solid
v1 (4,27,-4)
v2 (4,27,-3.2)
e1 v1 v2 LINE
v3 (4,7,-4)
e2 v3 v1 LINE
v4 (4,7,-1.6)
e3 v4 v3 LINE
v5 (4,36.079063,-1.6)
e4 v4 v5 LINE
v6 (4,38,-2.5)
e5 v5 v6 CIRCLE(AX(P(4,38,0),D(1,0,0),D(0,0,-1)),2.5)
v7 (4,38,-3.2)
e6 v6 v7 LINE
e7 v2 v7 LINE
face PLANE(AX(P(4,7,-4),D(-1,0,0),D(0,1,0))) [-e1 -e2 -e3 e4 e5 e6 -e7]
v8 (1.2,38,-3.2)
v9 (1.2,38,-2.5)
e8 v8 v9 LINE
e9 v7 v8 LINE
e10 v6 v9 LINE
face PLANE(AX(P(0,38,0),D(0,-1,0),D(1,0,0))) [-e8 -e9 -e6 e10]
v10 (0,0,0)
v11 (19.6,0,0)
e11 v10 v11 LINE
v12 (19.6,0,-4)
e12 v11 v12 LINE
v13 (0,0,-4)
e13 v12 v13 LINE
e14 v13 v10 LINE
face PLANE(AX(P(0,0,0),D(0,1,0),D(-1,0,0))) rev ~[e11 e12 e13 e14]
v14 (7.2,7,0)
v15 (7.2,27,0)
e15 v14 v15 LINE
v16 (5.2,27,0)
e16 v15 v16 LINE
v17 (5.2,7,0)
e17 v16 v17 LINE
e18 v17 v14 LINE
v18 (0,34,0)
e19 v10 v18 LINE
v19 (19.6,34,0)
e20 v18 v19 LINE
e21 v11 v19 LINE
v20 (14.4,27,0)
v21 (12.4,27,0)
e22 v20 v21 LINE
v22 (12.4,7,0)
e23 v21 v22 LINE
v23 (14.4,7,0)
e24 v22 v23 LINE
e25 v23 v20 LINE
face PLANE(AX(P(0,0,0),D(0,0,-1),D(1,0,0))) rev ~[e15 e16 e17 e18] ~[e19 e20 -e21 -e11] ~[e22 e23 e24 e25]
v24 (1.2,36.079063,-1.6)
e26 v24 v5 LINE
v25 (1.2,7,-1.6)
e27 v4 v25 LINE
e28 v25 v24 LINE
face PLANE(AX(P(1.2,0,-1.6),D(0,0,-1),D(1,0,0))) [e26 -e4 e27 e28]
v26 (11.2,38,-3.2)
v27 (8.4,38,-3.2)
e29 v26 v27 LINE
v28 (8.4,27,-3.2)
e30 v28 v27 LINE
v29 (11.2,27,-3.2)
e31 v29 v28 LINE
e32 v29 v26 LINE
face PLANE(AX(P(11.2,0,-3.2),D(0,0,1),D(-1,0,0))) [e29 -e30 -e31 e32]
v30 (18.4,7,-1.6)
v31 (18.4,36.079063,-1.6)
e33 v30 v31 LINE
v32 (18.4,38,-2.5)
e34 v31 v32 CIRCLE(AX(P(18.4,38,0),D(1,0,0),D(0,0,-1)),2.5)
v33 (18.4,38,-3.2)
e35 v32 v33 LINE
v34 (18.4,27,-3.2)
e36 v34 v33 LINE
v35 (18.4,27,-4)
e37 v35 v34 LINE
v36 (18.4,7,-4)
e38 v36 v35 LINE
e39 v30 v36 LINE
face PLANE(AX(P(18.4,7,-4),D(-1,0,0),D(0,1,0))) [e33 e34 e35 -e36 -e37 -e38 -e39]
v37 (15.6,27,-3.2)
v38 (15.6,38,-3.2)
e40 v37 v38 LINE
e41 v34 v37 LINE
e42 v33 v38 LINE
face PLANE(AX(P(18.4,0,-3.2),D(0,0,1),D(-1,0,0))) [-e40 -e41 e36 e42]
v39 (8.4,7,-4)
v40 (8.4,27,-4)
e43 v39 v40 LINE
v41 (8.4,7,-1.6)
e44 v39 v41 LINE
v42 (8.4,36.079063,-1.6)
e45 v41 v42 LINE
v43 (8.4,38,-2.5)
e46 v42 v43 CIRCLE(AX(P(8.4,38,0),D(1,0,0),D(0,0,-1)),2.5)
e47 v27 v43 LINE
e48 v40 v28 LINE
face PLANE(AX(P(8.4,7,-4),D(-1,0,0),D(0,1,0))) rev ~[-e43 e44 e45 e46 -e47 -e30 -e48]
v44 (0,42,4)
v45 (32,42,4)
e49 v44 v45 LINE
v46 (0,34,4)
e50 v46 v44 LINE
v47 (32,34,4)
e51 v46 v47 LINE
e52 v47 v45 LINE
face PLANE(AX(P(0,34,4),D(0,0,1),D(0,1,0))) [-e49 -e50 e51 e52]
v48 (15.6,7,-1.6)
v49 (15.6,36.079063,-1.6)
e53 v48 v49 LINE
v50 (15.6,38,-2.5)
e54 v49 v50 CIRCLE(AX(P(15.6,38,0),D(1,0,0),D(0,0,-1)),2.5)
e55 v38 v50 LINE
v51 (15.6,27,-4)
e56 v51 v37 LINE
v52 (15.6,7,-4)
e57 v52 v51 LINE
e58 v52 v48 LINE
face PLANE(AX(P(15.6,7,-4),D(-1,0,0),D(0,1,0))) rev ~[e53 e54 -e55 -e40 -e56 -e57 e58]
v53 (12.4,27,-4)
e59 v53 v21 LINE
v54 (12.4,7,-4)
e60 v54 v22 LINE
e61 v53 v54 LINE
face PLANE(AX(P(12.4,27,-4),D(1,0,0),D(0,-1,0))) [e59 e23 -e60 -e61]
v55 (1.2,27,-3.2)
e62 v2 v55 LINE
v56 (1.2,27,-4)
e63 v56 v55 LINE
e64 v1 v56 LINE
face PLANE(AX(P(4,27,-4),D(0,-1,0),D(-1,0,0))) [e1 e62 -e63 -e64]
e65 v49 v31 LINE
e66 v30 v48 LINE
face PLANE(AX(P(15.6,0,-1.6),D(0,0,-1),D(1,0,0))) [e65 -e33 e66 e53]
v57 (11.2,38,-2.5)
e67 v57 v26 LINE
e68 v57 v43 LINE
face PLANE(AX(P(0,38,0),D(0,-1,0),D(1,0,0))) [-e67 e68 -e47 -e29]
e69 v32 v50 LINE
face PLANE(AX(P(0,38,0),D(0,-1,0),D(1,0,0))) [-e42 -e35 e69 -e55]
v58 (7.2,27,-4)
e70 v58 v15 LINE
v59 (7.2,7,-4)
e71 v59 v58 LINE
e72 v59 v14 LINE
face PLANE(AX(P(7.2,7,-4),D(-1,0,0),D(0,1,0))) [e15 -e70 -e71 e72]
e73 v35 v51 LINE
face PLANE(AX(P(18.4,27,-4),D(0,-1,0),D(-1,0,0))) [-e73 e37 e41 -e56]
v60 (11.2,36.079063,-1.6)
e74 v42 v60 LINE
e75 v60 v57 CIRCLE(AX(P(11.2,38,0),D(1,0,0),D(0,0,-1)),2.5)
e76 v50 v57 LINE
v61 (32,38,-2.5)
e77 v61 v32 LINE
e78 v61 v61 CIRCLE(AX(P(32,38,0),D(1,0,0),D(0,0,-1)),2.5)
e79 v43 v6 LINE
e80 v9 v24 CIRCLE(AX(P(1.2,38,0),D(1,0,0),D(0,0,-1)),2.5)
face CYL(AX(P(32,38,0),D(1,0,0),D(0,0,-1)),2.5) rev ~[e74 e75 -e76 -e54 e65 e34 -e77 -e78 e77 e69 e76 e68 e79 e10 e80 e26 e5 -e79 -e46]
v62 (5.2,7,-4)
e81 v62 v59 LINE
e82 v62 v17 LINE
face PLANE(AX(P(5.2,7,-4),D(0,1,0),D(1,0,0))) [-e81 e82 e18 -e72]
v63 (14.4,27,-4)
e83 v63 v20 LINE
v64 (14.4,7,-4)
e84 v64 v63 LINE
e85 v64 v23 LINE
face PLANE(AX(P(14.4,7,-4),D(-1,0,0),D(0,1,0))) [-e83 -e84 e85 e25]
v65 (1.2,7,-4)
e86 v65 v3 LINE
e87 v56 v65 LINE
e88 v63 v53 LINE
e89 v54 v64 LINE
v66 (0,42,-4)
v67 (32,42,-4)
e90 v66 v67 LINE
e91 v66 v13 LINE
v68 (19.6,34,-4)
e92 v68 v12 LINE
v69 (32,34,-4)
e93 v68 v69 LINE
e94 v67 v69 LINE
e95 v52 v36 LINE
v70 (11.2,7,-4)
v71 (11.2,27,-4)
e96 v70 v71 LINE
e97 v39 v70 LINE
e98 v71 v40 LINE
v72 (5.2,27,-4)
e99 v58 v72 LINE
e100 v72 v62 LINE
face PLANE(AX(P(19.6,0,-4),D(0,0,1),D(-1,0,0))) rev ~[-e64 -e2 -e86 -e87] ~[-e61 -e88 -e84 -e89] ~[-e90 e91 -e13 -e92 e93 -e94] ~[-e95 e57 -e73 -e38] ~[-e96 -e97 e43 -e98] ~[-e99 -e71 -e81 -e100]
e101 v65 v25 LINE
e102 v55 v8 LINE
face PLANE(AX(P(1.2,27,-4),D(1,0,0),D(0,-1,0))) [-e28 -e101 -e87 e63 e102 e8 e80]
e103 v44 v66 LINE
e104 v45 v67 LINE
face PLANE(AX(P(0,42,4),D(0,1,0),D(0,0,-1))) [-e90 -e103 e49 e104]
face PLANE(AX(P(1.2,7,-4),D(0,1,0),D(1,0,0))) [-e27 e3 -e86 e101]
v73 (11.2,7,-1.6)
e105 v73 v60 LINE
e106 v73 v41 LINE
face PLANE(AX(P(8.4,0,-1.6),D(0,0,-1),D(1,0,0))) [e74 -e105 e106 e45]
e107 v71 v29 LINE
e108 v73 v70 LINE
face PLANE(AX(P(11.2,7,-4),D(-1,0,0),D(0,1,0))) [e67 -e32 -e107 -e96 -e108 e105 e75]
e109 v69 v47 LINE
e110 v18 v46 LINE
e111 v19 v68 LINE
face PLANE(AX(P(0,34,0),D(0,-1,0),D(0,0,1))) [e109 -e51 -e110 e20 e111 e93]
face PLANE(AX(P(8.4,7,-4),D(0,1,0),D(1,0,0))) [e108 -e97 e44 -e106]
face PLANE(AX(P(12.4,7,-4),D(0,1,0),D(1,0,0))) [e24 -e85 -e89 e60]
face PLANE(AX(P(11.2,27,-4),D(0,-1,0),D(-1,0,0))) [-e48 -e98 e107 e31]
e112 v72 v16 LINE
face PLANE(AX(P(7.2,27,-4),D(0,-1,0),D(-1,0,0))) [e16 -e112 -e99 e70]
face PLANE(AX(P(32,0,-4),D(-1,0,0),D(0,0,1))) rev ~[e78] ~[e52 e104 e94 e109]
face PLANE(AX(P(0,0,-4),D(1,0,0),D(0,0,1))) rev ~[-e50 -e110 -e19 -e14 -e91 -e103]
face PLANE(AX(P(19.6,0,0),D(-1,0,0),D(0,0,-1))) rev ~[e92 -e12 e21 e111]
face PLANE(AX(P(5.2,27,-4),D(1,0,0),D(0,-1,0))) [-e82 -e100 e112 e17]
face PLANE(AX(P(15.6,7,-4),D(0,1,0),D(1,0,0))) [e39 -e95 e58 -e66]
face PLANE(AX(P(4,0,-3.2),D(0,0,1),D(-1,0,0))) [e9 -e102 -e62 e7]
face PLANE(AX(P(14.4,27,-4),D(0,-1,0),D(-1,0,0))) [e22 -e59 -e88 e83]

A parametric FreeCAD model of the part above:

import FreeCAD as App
import Part
import Sketcher
from FreeCAD import Vector
Q = App.Units.Quantity


def add_polygon(sketch, points):
    """Adds a closed chain of lines whose ends are joined by coincident constraints."""
    first, n = sketch.GeometryCount, len(points)
    for a, b in zip(points, points[1:] + points[:1]):
        sketch.addGeometry(Part.LineSegment(App.Vector(*a, 0), App.Vector(*b, 0)), False)
    for i in range(n):
        sketch.addConstraint(Sketcher.Constraint("Coincident", first + i, 2, first + (i + 1) % n, 1))

doc = App.newDocument("Part")
body = doc.addObject("PartDesign::Body", "Body")

# Sketch on XZ plane
sketch1 = body.newObject("Sketcher::SketchObject", "Sketch")
sketch1.AttachmentSupport = (doc.getObject("XZ_Plane"), [""])
sketch1.MapMode = "FlatFace"
add_polygon(sketch1, [(0, -4), (0, 0), (19.6, 0), (19.6, -4)])  # lines 0-3
sketch1.addConstraint(Sketcher.Constraint("Vertical", 0))
sketch1.addConstraint(Sketcher.Constraint("Horizontal", 1))
sketch1.addConstraint(Sketcher.Constraint("Vertical", 2))
sketch1.addConstraint(Sketcher.Constraint("Horizontal", 3))
sketch1.addConstraint(Sketcher.Constraint("Coincident", 0, 2, -1, 1))
sketch1.addConstraint(Sketcher.Constraint("DistanceY", 0, 1, 0, 2, Q("4 mm")))
sketch1.addConstraint(Sketcher.Constraint("DistanceX", 1, 1, 1, 2, Q("19.6 mm")))
pad1 = body.newObject("PartDesign::Pad", "Pad")
pad1.Profile = sketch1
pad1.Length = 34
pad1.Reversed = True

# Sketch on YZ plane
sketch2 = body.newObject("Sketcher::SketchObject", "Sketch001")
sketch2.AttachmentSupport = (doc.getObject("YZ_Plane"), [""])
sketch2.MapMode = "FlatFace"
add_polygon(sketch2, [(34, -4), (34, 4), (42, 4), (42, -4)])  # lines 0-3
sketch2.addConstraint(Sketcher.Constraint("Vertical", 0))
sketch2.addConstraint(Sketcher.Constraint("Horizontal", 1))
sketch2.addConstraint(Sketcher.Constraint("Vertical", 2))
sketch2.addConstraint(Sketcher.Constraint("Horizontal", 3))
sketch2.addConstraint(Sketcher.Constraint("Equal", 3, 0))
sketch2.addConstraint(Sketcher.Constraint("DistanceX", 1, 1, 1, 2, Q("8 mm")))
sketch2.addConstraint(Sketcher.Constraint("DistanceY", -1, 1, 0, 2, Q("4 mm")))
sketch2.addConstraint(Sketcher.Constraint("DistanceX", -1, 1, 0, 2, Q("34 mm")))
pad2 = body.newObject("PartDesign::Pad", "Pad001")
pad2.Profile = sketch2
pad2.Length = 32

# Sketch on YZ plane
sketch3 = body.newObject("Sketcher::SketchObject", "Sketch002")
sketch3.AttachmentSupport = (doc.getObject("YZ_Plane"), [""])
sketch3.MapMode = "FlatFace"
sketch3.AttachmentOffset = App.Placement(Vector(0, 0, 32), App.Rotation())
sketch3.addGeometry(Part.Circle(Vector(38, 0, 0), Vector(0, 0, 1), 2.5), False)
sketch3.addConstraint(Sketcher.Constraint("PointOnObject", 0, 3, -1))
sketch3.addConstraint(Sketcher.Constraint("Diameter", 0, Q("5 mm")))
sketch3.addConstraint(Sketcher.Constraint("DistanceX", -1, 1, 0, 3, Q("38 mm")))
pocket1 = body.newObject("PartDesign::Pocket", "Pocket")
pocket1.Profile = sketch3
pocket1.Length = 30.8

# Sketch on XZ plane
sketch4 = body.newObject("Sketcher::SketchObject", "Sketch003")
sketch4.AttachmentSupport = (doc.getObject("XZ_Plane"), [""])
sketch4.MapMode = "FlatFace"
add_polygon(sketch4, [(15.6, -3.2), (18.4, -3.2), (18.4, -1.6), (15.6, -1.6)])  # lines 0-3
add_polygon(sketch4, [(8.4, -3.2), (11.2, -3.2), (11.2, -1.6), (8.4, -1.6)])  # lines 4-7
add_polygon(sketch4, [(1.2, -3.2), (4, -3.2), (4, -1.6), (1.2, -1.6)])  # lines 8-11
sketch4.addConstraint(Sketcher.Constraint("Horizontal", 0))
sketch4.addConstraint(Sketcher.Constraint("Vertical", 1))
sketch4.addConstraint(Sketcher.Constraint("Horizontal", 2))
sketch4.addConstraint(Sketcher.Constraint("Vertical", 3))
sketch4.addConstraint(Sketcher.Constraint("Horizontal", 4))
sketch4.addConstraint(Sketcher.Constraint("Vertical", 5))
sketch4.addConstraint(Sketcher.Constraint("Horizontal", 6))
sketch4.addConstraint(Sketcher.Constraint("Vertical", 7))
sketch4.addConstraint(Sketcher.Constraint("Horizontal", 8))
sketch4.addConstraint(Sketcher.Constraint("Vertical", 9))
sketch4.addConstraint(Sketcher.Constraint("Horizontal", 10))
sketch4.addConstraint(Sketcher.Constraint("Vertical", 11))
sketch4.addConstraint(Sketcher.Constraint("Horizontal", 3, 2, 4, 2))
sketch4.addConstraint(Sketcher.Constraint("Horizontal", 2, 2, 5, 2))
sketch4.addConstraint(Sketcher.Constraint("Horizontal", 7, 2, 8, 2))
sketch4.addConstraint(Sketcher.Constraint("Horizontal", 6, 2, 9, 2))
sketch4.addConstraint(Sketcher.Constraint("Equal", 2, 4))
sketch4.addConstraint(Sketcher.Constraint("Equal", 6, 8))
sketch4.addConstraint(Sketcher.Constraint("DistanceX", 0, 1, 0, 2, Q("2.8 mm")))
sketch4.addConstraint(Sketcher.Constraint("DistanceY", 1, 1, 1, 2, Q("1.6 mm")))
sketch4.addConstraint(Sketcher.Constraint("DistanceY", 1, 2, -1, 1, Q("1.6 mm")))
sketch4.addConstraint(Sketcher.Constraint("DistanceX", -1, 1, 10, 2, Q("1.2 mm")))
sketch4.addConstraint(Sketcher.Constraint("DistanceX", 4, 2, 3, 2, Q("4.4 mm")))
sketch4.addConstraint(Sketcher.Constraint("DistanceX", 8, 2, 7, 2, Q("4.4 mm")))
pocket2 = body.newObject("PartDesign::Pocket", "Pocket001")
pocket2.Profile = sketch4
pocket2.Length = 38

# Sketch on XY plane
sketch5 = body.newObject("Sketcher::SketchObject", "Sketch004")
sketch5.AttachmentSupport = (doc.getObject("XY_Plane"), [""])
sketch5.MapMode = "FlatFace"
sketch5.AttachmentOffset = App.Placement(Vector(0, 0, -4), App.Rotation())
add_polygon(sketch5, [(4, 27), (4, 7), (1.2, 7), (1.2, 27)])  # lines 0-3
add_polygon(sketch5, [(18.4, 27), (18.4, 7), (15.6, 7), (15.6, 27)])  # lines 4-7
add_polygon(sketch5, [(11.2, 27), (11.2, 7), (8.4, 7), (8.4, 27)])  # lines 8-11
sketch5.addConstraint(Sketcher.Constraint("Vertical", 0))
sketch5.addConstraint(Sketcher.Constraint("Horizontal", 1))
sketch5.addConstraint(Sketcher.Constraint("Vertical", 2))
sketch5.addConstraint(Sketcher.Constraint("Horizontal", 3))
sketch5.addConstraint(Sketcher.Constraint("Vertical", 4))
sketch5.addConstraint(Sketcher.Constraint("Horizontal", 5))
sketch5.addConstraint(Sketcher.Constraint("Vertical", 6))
sketch5.addConstraint(Sketcher.Constraint("Horizontal", 7))
sketch5.addConstraint(Sketcher.Constraint("Vertical", 8))
sketch5.addConstraint(Sketcher.Constraint("Horizontal", 9))
sketch5.addConstraint(Sketcher.Constraint("Vertical", 10))
sketch5.addConstraint(Sketcher.Constraint("Horizontal", 11))
sketch5.addConstraint(Sketcher.Constraint("Horizontal", 1, 2, 4, 2))
sketch5.addConstraint(Sketcher.Constraint("Horizontal", 3, 2, 6, 2))
sketch5.addConstraint(Sketcher.Constraint("Horizontal", 5, 2, 8, 2))
sketch5.addConstraint(Sketcher.Constraint("Horizontal", 7, 2, 10, 2))
sketch5.addConstraint(Sketcher.Constraint("Equal", 3, 5))
sketch5.addConstraint(Sketcher.Constraint("Equal", 7, 9))
sketch5.addConstraint(Sketcher.Constraint("DistanceY", 0, 2, 0, 1, Q("20 mm")))
sketch5.addConstraint(Sketcher.Constraint("DistanceY", -1, 1, 0, 2, Q("7 mm")))
sketch5.addConstraint(Sketcher.Constraint("DistanceX", -1, 1, 1, 2, Q("1.2 mm")))
sketch5.addConstraint(Sketcher.Constraint("DistanceX", 1, 2, 1, 1, Q("2.8 mm")))
sketch5.addConstraint(Sketcher.Constraint("DistanceX", 1, 2, 8, 2, Q("10 mm")))
sketch5.addConstraint(Sketcher.Constraint("DistanceX", 9, 2, 4, 2, Q("10 mm")))
pocket3 = body.newObject("PartDesign::Pocket", "Pocket002")
pocket3.Profile = sketch5
pocket3.Length = 0.8
pocket3.Reversed = True

# Sketch on XY plane
sketch6 = body.newObject("Sketcher::SketchObject", "Sketch005")
sketch6.AttachmentSupport = (doc.getObject("XY_Plane"), [""])
sketch6.MapMode = "FlatFace"
sketch6.AttachmentOffset = App.Placement(Vector(0, 0, -4), App.Rotation())
add_polygon(sketch6, [(12.4, 27), (14.4, 27), (14.4, 7), (12.4, 7)])  # lines 0-3
add_polygon(sketch6, [(5.2, 27), (7.2, 27), (7.2, 7), (5.2, 7)])  # lines 4-7
sketch6.addConstraint(Sketcher.Constraint("Horizontal", 0))
sketch6.addConstraint(Sketcher.Constraint("Vertical", 1))
sketch6.addConstraint(Sketcher.Constraint("Horizontal", 2))
sketch6.addConstraint(Sketcher.Constraint("Vertical", 3))
sketch6.addConstraint(Sketcher.Constraint("Horizontal", 4))
sketch6.addConstraint(Sketcher.Constraint("Vertical", 5))
sketch6.addConstraint(Sketcher.Constraint("Horizontal", 6))
sketch6.addConstraint(Sketcher.Constraint("Vertical", 7))
sketch6.addConstraint(Sketcher.Constraint("Horizontal", 3, 2, 4, 2))
sketch6.addConstraint(Sketcher.Constraint("Horizontal", 2, 2, 5, 2))
sketch6.addConstraint(Sketcher.Constraint("Equal", 2, 4))
sketch6.addConstraint(Sketcher.Constraint("DistanceX", 0, 1, 0, 2, Q("2 mm")))
sketch6.addConstraint(Sketcher.Constraint("DistanceY", 1, 2, 1, 1, Q("20 mm")))
sketch6.addConstraint(Sketcher.Constraint("DistanceY", -1, 1, 0, 2, Q("27 mm")))
sketch6.addConstraint(Sketcher.Constraint("DistanceX", -1, 1, 0, 2, Q("14.4 mm")))
sketch6.addConstraint(Sketcher.Constraint("DistanceX", -1, 1, 4, 2, Q("7.2 mm")))
pocket4 = body.newObject("PartDesign::Pocket", "Pocket003")
pocket4.Profile = sketch6
pocket4.Length = 4
pocket4.Reversed = True

# Sketch on XZ plane
sketch7 = body.newObject("Sketcher::SketchObject", "Sketch006")
sketch7.AttachmentSupport = (doc.getObject("XZ_Plane"), [""])
sketch7.MapMode = "FlatFace"
add_polygon(sketch7, [(19.6, 0), (0, 0), (0, -4), (19.6, -4)])  # lines 0-3
sketch7.addConstraint(Sketcher.Constraint("Horizontal", 0))
sketch7.addConstraint(Sketcher.Constraint("Vertical", 1))
sketch7.addConstraint(Sketcher.Constraint("Horizontal", 2))
sketch7.addConstraint(Sketcher.Constraint("Vertical", 3))
sketch7.addConstraint(Sketcher.Constraint("Coincident", 0, 2, -1, 1))
sketch7.addConstraint(Sketcher.Constraint("DistanceY", 1, 2, 1, 1, Q("4 mm")))
sketch7.addConstraint(Sketcher.Constraint("DistanceX", 0, 2, 0, 1, Q("19.6 mm")))
pad3 = body.newObject("PartDesign::Pad", "Pad002")
pad3.Profile = sketch7
pad3.Length = 7
pad3.Reversed = True

doc.recompute()
